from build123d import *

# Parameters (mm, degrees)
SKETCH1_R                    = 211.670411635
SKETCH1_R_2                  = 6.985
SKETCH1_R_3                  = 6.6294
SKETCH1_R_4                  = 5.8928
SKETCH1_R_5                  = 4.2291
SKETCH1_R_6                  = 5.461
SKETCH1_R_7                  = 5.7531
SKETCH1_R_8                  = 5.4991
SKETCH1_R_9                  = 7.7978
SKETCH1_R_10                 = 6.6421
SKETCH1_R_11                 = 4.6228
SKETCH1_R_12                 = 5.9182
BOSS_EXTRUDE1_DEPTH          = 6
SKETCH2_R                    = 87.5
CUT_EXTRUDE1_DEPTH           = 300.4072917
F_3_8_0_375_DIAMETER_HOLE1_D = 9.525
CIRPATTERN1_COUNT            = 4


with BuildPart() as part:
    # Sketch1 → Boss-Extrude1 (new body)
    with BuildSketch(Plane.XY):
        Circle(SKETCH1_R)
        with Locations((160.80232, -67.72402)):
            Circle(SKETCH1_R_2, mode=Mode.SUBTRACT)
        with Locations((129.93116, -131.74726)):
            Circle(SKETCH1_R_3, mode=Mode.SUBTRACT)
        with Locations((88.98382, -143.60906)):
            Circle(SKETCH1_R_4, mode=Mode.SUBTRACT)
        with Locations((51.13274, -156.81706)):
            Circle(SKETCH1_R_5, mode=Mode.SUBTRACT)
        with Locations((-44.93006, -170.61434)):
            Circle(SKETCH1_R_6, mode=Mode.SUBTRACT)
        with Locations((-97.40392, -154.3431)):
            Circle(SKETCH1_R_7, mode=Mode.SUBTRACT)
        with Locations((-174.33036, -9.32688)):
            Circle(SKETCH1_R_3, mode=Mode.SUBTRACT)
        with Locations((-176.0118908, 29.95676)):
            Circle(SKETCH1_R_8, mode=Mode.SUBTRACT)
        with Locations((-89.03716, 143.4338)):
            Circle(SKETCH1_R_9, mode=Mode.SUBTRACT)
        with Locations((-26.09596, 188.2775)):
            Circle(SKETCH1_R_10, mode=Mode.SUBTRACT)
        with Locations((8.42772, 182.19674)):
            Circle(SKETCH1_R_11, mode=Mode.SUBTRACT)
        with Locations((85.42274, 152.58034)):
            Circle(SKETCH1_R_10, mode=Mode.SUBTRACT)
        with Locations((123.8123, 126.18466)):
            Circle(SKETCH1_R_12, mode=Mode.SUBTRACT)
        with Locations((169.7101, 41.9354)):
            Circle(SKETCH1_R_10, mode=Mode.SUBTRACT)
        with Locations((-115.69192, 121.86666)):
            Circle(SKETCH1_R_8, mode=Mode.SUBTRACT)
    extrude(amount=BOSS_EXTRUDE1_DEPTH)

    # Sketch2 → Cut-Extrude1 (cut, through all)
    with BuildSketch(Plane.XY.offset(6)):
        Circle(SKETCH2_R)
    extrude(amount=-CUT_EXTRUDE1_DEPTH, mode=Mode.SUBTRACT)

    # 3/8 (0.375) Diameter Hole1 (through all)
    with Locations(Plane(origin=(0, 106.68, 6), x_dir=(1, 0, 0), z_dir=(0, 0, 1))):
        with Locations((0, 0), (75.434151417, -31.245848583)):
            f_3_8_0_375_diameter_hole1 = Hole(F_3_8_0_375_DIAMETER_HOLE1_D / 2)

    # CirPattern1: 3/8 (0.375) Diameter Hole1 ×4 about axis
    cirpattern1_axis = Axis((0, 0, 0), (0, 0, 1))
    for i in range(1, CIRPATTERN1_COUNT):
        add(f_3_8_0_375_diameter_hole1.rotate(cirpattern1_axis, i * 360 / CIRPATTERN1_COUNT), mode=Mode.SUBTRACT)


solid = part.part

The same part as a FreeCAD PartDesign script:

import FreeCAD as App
import Part
import Sketcher
from FreeCAD import Vector
Q = App.Units.Quantity

doc = App.newDocument("Part")
body = doc.addObject("PartDesign::Body", "Body")

# Sketch on XY plane
sketch1 = body.newObject("Sketcher::SketchObject", "Sketch")
sketch1.AttachmentSupport = (doc.getObject("XY_Plane"), [""])
sketch1.MapMode = "FlatFace"
sketch1.addGeometry([
    Part.Circle(Vector(0, 0, 0), Vector(0, 0, 1), 211.670412),  # 0
    Part.Circle(Vector(-97.40392, -154.3431, 0), Vector(0, 0, 1), 5.7531),  # 1
    Part.Circle(Vector(-44.93006, -170.61434, 0), Vector(0, 0, 1), 5.461),  # 2
    Part.Circle(Vector(-174.33036, -9.32688, 0), Vector(0, 0, 1), 6.6294),  # 3
    Part.Circle(Vector(51.13274, -156.81706, 0), Vector(0, 0, 1), 4.2291),  # 4
    Part.Circle(Vector(88.98382, -143.60906, 0), Vector(0, 0, 1), 5.8928),  # 5
    Part.Circle(Vector(129.93116, -131.74726, 0), Vector(0, 0, 1), 6.6294),  # 6
    Part.Circle(Vector(160.80232, -67.72402, 0), Vector(0, 0, 1), 6.985),  # 7
    Part.Circle(Vector(-176.011891, 29.95676, 0), Vector(0, 0, 1), 5.4991),  # 8
    Part.Circle(Vector(-115.69192, 121.86666, 0), Vector(0, 0, 1), 5.4991),  # 9
    Part.Circle(Vector(-89.03716, 143.4338, 0), Vector(0, 0, 1), 7.7978),  # 10
    Part.Circle(Vector(-26.09596, 188.2775, 0), Vector(0, 0, 1), 6.6421),  # 11
    Part.Circle(Vector(169.7101, 41.9354, 0), Vector(0, 0, 1), 6.6421),  # 12
    Part.Circle(Vector(8.42772, 182.19674, 0), Vector(0, 0, 1), 4.6228),  # 13
    Part.Circle(Vector(85.42274, 152.58034, 0), Vector(0, 0, 1), 6.6421),  # 14
    Part.Circle(Vector(123.8123, 126.18466, 0), Vector(0, 0, 1), 5.9182),  # 15
], False)
sketch1.addConstraint([
    Sketcher.Constraint("Coincident", 0, 3, -1, 1),
    Sketcher.Constraint("Equal", 3, 6),
    Sketcher.Constraint("Equal", 8, 9),
    Sketcher.Constraint("Equal", 11, 12),
    Sketcher.Constraint("Equal", 12, 14),
    Sketcher.Constraint("Diameter", 2, Q("0.43 in")),
    Sketcher.Constraint("Diameter", 7, Q("0.55 in")),
    Sketcher.Constraint("Diameter", 1, Q("0.453 in")),
    Sketcher.Constraint("Diameter", 3, Q("0.522 in")),
    Sketcher.Constraint("Diameter", 4, Q("0.333 in")),
    Sketcher.Constraint("Diameter", 5, Q("0.464 in")),
    Sketcher.Constraint("Diameter", 8, Q("0.433 in")),
    Sketcher.Constraint("Diameter", 10, Q("0.614 in")),
    Sketcher.Constraint("Diameter", 11, Q("0.523 in")),
    Sketcher.Constraint("Diameter", 13, Q("0.364 in")),
    Sketcher.Constraint("Diameter", 15, Q("0.466 in")),
    Sketcher.Constraint("DistanceY", 4, 3, 5, 3, Q("0.52 in")),
    Sketcher.Constraint("DistanceX", 9, 3, 1, 3, Q("0.72 in")),
    Sketcher.Constraint("DistanceY", -1, 1, 10, 3, Q("5.647 in")),
    Sketcher.Constraint("DistanceY", -1, 1, 12, 3, Q("1.651 in")),
    Sketcher.Constraint("DistanceX", 2, 3, 4, 3, Q("3.782 in")),
    Sketcher.Constraint("DistanceY", 5, 3, 6, 3, Q("0.467 in")),
    Sketcher.Constraint("DistanceY", 2, 3, 9, 3, Q("11.515 in")),
    Sketcher.Constraint("DistanceX", 3, 3, 10, 3, Q("3.358 in")),
    Sketcher.Constraint("DistanceX", 10, 3, 11, 3, Q("2.478 in")),
    Sketcher.Constraint("DistanceY", 14, 3, 13, 3, Q("1.166 in")),
    Sketcher.Constraint("DistanceX", 15, 3, 12, 3, Q("1.807 in")),
    Sketcher.Constraint("Diameter", 0, Q("423.340823 mm")),
    Sketcher.Constraint("DistanceX", 1, 3, -1, 1, Q("3.8348 in")),
    Sketcher.Constraint("DistanceY", 1, 3, -1, 1, Q("6.0765 in")),
    Sketcher.Constraint("DistanceX", 2, 3, -1, 1, Q("1.7689 in")),
    Sketcher.Constraint("DistanceY", 2, 3, -1, 1, Q("6.7171 in")),
    Sketcher.Constraint("DistanceX", 3, 3, -1, 1, Q("6.8634 in")),
    Sketcher.Constraint("DistanceY", 3, 3, -1, 1, Q("0.3672 in")),
    Sketcher.Constraint("DistanceY", 4, 3, -1, 1, Q("6.1739 in")),
    Sketcher.Constraint("DistanceX", -1, 1, 5, 3, Q("3.5033 in")),
    Sketcher.Constraint("DistanceX", -1, 1, 6, 3, Q("5.1154 in")),
    Sketcher.Constraint("DistanceX", -1, 1, 7, 3, Q("6.3308 in")),
    Sketcher.Constraint("DistanceY", 7, 3, -1, 1, Q("2.6663 in")),
    Sketcher.Constraint("DistanceY", -1, 1, 8, 3, Q("1.1794 in")),
    Sketcher.Constraint("DistanceY", -1, 1, 11, 3, Q("7.4125 in")),
    Sketcher.Constraint("DistanceX", -1, 1, 12, 3, Q("6.6815 in")),
    Sketcher.Constraint("DistanceX", -1, 1, 13, 3, Q("0.3318 in")),
    Sketcher.Constraint("DistanceY", -1, 1, 13, 3, Q("7.1731 in")),
    Sketcher.Constraint("DistanceX", -1, 1, 14, 3, Q("3.3631 in")),
    Sketcher.Constraint("DistanceY", -1, 1, 15, 3, Q("4.9679 in")),
    Sketcher.Constraint("DistanceX", 8, 3, -1, 1, Q("176.011891 mm")),
])
pad1 = body.newObject("PartDesign::Pad", "Pad")
pad1.Profile = sketch1
pad1.Length = 6

# Sketch on XY plane
sketch2 = body.newObject("Sketcher::SketchObject", "Sketch001")
sketch2.AttachmentSupport = (doc.getObject("XY_Plane"), [""])
sketch2.MapMode = "FlatFace"
sketch2.AttachmentOffset = App.Placement(Vector(0, 0, 6), App.Rotation())
sketch2.addGeometry(Part.Circle(Vector(0, 0, 0), Vector(0, 0, 1), 87.5), False)
sketch2.addConstraint([
    Sketcher.Constraint("Coincident", 0, 3, -1, 1),
    Sketcher.Constraint("Diameter", 0, Q("175 mm")),
])
pocket1 = body.newObject("PartDesign::Pocket", "Pocket")
pocket1.Profile = sketch2
pocket1.Type = "ThroughAll"

# Sketch on XY plane
sketch3 = body.newObject("Sketcher::SketchObject", "Sketch002")
sketch3.AttachmentSupport = (doc.getObject("XY_Plane"), [""])
sketch3.MapMode = "FlatFace"
sketch3.AttachmentOffset = App.Placement(Vector(0, 0, 6), App.Rotation())
sketch3.addGeometry([
    Part.Circle(Vector(0, 106.68, 0), Vector(0, 0, 1), 4.7625),
    Part.Circle(Vector(75.434151, 75.434151, 0), Vector(0, 0, 1), 4.7625),
], False)
sketch3.addConstraint([
    Sketcher.Constraint("Equal", 0, 1),
    Sketcher.Constraint("PointOnObject", 0, 3, -2),
    Sketcher.Constraint("Diameter", 0, Q("0.375 in")),
    Sketcher.Constraint("DistanceY", -1, 1, 0, 3, Q("4.2 in")),
    Sketcher.Constraint("DistanceX", -1, 1, 1, 3, Q("75.434151 mm")),
    Sketcher.Constraint("DistanceY", -1, 1, 1, 3, Q("75.434151 mm")),
])
doc.recompute()
hole = body.newObject("PartDesign::Hole", "Hole")
hole.Profile = sketch3
hole.ThreadType = "None"
hole.Diameter = Q("0.375 in")
hole.DepthType = "ThroughAll"
doc.recompute()

polarpattern = body.newObject("PartDesign::PolarPattern", "PolarPattern")
polarpattern.Originals = [hole]
polarpattern.Axis = (doc.getObject("Z_Axis"), [""])
polarpattern.Angle = 360
polarpattern.Occurrences = 4
body.Tip = polarpattern

doc.recompute()
